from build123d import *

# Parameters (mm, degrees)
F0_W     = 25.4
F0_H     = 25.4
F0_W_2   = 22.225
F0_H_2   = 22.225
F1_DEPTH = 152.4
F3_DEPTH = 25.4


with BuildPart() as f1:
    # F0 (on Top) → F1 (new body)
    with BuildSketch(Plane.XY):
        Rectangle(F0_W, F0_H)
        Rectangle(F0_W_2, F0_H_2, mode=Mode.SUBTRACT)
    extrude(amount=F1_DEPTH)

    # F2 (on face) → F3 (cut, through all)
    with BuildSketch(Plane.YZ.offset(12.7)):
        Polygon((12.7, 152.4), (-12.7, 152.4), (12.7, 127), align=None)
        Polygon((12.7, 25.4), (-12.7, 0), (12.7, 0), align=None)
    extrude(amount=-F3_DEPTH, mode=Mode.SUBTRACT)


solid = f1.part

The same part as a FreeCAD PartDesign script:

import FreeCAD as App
import Part
import Sketcher
Q = App.Units.Quantity


def add_polygon(sketch, points):
    """Adds a closed chain of lines whose ends are joined by coincident constraints."""
    first, n = sketch.GeometryCount, len(points)
    for a, b in zip(points, points[1:] + points[:1]):
        sketch.addGeometry(Part.LineSegment(App.Vector(*a, 0), App.Vector(*b, 0)), False)
    for i in range(n):
        sketch.addConstraint(Sketcher.Constraint("Coincident", first + i, 2, first + (i + 1) % n, 1))

doc = App.newDocument("Part")
params = doc.addObject("Spreadsheet::Sheet", "Params")
for row, (alias, value) in enumerate([
    ("sketch1_width", "1 in"),
    ("sketch1_width2", "0.875 in"),
    ("pad1_length", "6 in"),
    ("sketch2_width", "1 in"),
], start=1):
    params.set(f"A{row}", alias)
    params.set(f"B{row}", "=" + value)
    params.setAlias(f"B{row}", alias)

body = doc.addObject("PartDesign::Body", "Body")

# Sketch on XY plane
sketch1 = doc.addObject("Sketcher::SketchObject", "Sketch")
body.addObject(sketch1)
sketch1.AttachmentSupport = (doc.XY_Plane, [""])
sketch1.MapMode = "FlatFace"
add_polygon(sketch1, [(-12.7, 12.7), (-12.7, -12.7), (12.7, -12.7), (12.7, 12.7)])  # lines 0-3
add_polygon(sketch1, [(11.1125, -11.1125), (-11.1125, -11.1125), (-11.1125, 11.1125), (11.1125, 11.1125)])  # lines 4-7
sketch1.addConstraint([
    Sketcher.Constraint("Vertical", 0),
    Sketcher.Constraint("Horizontal", 1),
    Sketcher.Constraint("Vertical", 2),
    Sketcher.Constraint("Horizontal", 3),
    Sketcher.Constraint("Horizontal", 4),
    Sketcher.Constraint("Vertical", 5),
    Sketcher.Constraint("Horizontal", 6),
    Sketcher.Constraint("Vertical", 7),
    Sketcher.Constraint("Symmetric", 0, 2, 2, 2, -1, 1),
    Sketcher.Constraint("Symmetric", 4, 2, 6, 2, -1, 1),
    Sketcher.Constraint("Equal", 3, 0),
    Sketcher.Constraint("Equal", 6, 5),
    Sketcher.Constraint("DistanceX", 1, 1, 1, 2, Q("1 in")),
    Sketcher.Constraint("DistanceX", 4, 2, 4, 1, Q("0.875 in")),
])
sketch1.setExpression("Constraints[20]", "Params.sketch1_width")
sketch1.setExpression("Constraints[21]", "Params.sketch1_width2")
pad1 = doc.addObject("PartDesign::Pad", "Pad")
body.addObject(pad1)
pad1.Profile = sketch1
pad1.setExpression("Length", "Params.pad1_length")

# Sketch on YZ plane
sketch2 = doc.addObject("Sketcher::SketchObject", "Sketch001")
body.addObject(sketch2)
sketch2.AttachmentSupport = (doc.YZ_Plane, [""])
sketch2.MapMode = "FlatFace"
sketch2.AttachmentOffset = App.Placement(App.Vector(0, 0, 0.5 * 25.4), App.Rotation())
add_polygon(sketch2, [(12.7, 152.4), (-12.7, 152.4), (12.7, 127)])  # lines 0-2
add_polygon(sketch2, [(12.7, 25.4), (-12.7, 0), (12.7, 0)])  # lines 3-5
sketch2.addConstraint([
    Sketcher.Constraint("Horizontal", 0),
    Sketcher.Constraint("Vertical", 2),
    Sketcher.Constraint("Horizontal", 4),
    Sketcher.Constraint("Vertical", 5),
    Sketcher.Constraint("Symmetric", 3, 2, 4, 2, -1, 1),
    Sketcher.Constraint("Perpendicular", 1, 3),
    Sketcher.Constraint("Vertical", 0, 2, 3, 2),
    Sketcher.Constraint("Vertical", 2, 2, 4, 2),
    Sketcher.Constraint("Equal", 4, 2),
    Sketcher.Constraint("DistanceX", 0, 2, 0, 1, Q("1 in")),
    Sketcher.Constraint("DistanceY", -1, 1, 0, 2, Q("6 in")),
])
sketch2.setExpression("Constraints[15]", "Params.sketch2_width")
pocket1 = doc.addObject("PartDesign::Pocket", "Pocket")
body.addObject(pocket1)
pocket1.Profile = sketch2
pocket1.Type = "ThroughAll"

doc.recompute()
